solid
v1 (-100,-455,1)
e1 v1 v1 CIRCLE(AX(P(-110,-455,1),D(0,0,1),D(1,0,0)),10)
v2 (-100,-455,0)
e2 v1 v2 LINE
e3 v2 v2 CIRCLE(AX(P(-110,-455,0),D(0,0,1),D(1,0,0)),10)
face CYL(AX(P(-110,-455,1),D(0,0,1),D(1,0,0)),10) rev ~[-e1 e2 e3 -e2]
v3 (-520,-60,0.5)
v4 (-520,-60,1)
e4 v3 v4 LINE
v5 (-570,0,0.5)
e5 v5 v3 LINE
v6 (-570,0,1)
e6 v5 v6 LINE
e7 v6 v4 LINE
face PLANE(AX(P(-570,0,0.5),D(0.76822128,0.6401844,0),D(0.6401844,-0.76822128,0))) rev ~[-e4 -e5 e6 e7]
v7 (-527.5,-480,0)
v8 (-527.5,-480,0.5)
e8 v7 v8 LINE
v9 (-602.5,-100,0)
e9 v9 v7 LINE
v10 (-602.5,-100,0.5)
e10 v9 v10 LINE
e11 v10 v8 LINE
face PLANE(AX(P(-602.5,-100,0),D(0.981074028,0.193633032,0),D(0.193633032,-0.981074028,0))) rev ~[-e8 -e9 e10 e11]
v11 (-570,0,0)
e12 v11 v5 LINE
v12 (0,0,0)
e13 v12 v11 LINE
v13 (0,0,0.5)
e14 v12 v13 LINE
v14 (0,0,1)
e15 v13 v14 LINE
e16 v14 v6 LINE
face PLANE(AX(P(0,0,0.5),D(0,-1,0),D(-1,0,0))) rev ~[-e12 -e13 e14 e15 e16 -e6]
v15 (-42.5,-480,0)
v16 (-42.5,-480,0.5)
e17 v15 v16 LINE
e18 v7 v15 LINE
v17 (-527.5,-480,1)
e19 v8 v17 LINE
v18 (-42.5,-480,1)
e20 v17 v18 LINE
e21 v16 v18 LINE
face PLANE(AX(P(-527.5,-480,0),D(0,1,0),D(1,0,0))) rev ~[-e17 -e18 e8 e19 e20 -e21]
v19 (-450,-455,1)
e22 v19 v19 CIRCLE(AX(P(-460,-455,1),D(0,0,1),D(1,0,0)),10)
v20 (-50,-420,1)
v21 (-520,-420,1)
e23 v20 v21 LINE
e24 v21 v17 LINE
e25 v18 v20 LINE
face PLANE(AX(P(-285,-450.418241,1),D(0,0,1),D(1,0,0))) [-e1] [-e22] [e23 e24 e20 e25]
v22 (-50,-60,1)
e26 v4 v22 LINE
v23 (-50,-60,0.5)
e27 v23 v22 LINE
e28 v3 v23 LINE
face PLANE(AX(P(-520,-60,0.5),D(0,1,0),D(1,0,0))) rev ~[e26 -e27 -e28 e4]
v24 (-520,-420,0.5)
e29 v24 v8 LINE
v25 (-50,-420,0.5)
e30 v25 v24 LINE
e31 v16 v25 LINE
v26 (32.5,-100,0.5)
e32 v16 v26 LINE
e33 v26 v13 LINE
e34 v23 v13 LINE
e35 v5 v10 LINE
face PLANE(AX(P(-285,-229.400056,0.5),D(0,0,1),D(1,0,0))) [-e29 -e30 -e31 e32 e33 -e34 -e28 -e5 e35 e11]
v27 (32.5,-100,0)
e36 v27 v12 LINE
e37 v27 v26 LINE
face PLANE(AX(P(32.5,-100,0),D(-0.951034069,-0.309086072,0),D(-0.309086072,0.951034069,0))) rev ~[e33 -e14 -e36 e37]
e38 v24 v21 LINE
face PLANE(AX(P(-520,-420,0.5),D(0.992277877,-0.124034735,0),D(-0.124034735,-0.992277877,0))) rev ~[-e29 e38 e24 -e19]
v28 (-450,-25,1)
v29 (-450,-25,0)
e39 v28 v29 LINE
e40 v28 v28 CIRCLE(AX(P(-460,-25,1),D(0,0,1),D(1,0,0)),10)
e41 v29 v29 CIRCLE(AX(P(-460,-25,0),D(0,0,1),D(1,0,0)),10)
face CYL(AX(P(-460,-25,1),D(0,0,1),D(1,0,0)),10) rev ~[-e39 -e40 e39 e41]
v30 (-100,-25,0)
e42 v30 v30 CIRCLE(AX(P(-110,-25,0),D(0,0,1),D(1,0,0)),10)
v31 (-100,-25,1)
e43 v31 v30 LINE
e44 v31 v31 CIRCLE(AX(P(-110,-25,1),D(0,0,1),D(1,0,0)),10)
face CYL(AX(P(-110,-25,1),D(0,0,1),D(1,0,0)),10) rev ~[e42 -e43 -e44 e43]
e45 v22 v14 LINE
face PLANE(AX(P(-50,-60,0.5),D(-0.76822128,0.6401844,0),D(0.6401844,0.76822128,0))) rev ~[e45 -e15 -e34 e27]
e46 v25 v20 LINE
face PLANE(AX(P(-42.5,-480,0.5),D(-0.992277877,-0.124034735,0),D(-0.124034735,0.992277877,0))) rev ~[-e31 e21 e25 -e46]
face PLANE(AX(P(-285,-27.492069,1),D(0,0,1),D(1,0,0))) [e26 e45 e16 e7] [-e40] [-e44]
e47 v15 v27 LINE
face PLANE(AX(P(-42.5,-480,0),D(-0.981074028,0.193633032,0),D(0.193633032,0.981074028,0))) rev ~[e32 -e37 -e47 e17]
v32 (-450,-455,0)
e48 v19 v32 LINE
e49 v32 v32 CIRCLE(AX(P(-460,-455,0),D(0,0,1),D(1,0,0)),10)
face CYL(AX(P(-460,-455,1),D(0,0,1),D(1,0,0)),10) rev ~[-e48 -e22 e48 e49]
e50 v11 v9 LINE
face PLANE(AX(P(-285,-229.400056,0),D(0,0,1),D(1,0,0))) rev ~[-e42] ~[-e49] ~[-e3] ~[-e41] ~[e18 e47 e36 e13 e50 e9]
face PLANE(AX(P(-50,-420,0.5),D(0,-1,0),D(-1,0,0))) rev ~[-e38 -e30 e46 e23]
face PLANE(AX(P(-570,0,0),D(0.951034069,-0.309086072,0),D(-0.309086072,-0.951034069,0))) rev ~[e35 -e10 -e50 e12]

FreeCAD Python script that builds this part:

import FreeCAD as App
import Part
import Sketcher
from FreeCAD import Vector

doc = App.newDocument("Part")
body = doc.addObject("PartDesign::Body", "Body")

# Sketch on XY plane
sketch1 = body.newObject("Sketcher::SketchObject", "Sketch")
sketch1.AttachmentSupport = (doc.getObject("XY_Plane"), [""])
sketch1.MapMode = "FlatFace"
sketch1.addGeometry(Part.LineSegment(Vector(0, 0, 0), Vector(-570, 0, 0)), False)
sketch1.addGeometry(Part.LineSegment(Vector(-570, 0, 0), Vector(-602.5, -100, 0)), False)
sketch1.addGeometry(Part.LineSegment(Vector(-602.5, -100, 0), Vector(-527.5, -480, 0)), False)
sketch1.addGeometry(Part.LineSegment(Vector(-527.5, -480, 0), Vector(-42.5, -480, 0)), False)
sketch1.addGeometry(Part.LineSegment(Vector(-42.5, -480, 0), Vector(32.5, -100, 0)), False)
sketch1.addGeometry(Part.LineSegment(Vector(32.5, -100, 0), Vector(0, 0, 0)), False)
sketch1.addConstraint(Sketcher.Constraint("Coincident", 0, 2, 1, 1))
sketch1.addConstraint(Sketcher.Constraint("Coincident", 1, 2, 2, 1))
sketch1.addConstraint(Sketcher.Constraint("Coincident", 2, 2, 3, 1))
sketch1.addConstraint(Sketcher.Constraint("Coincident", 3, 2, 4, 1))
sketch1.addConstraint(Sketcher.Constraint("Coincident", 4, 2, 5, 1))
sketch1.addConstraint(Sketcher.Constraint("Coincident", 5, 2, 0, 1))
sketch1.addConstraint(Sketcher.Constraint("Horizontal", 0))
sketch1.addConstraint(Sketcher.Constraint("Horizontal", 3))
sketch1.addConstraint(Sketcher.Constraint("Coincident", 5, 2, -1, 1))
sketch1.addConstraint(Sketcher.Constraint("Horizontal", 1, 2, 4, 2))
sketch1.addConstraint(Sketcher.Constraint("Equal", 2, 4))
sketch1.addConstraint(Sketcher.Constraint("Equal", 1, 5))
sketch1.addConstraint(Sketcher.Constraint("DistanceX", 0, 2, 0, 1, 570.0))
sketch1.addConstraint(Sketcher.Constraint("DistanceX", 3, 1, 3, 2, 485.0))
sketch1.addConstraint(Sketcher.Constraint("DistanceY", 1, 2, -1, 1, 100.0))
sketch1.addConstraint(Sketcher.Constraint("DistanceY", 2, 2, -1, 1, 480.0))
sketch1.addConstraint(Sketcher.Constraint("DistanceX", 1, 2, 2, 2, 75.0))
pad1 = body.newObject("PartDesign::Pad", "Pad")
pad1.Profile = sketch1
pad1.Length = 0.5

# Sketch on XY plane
sketch2 = body.newObject("Sketcher::SketchObject", "Sketch001")
sketch2.AttachmentSupport = (doc.getObject("XY_Plane"), [""])
sketch2.MapMode = "FlatFace"
sketch2.AttachmentOffset = App.Placement(Vector(0, 0, 0.5), App.Rotation())
sketch2.addGeometry(Part.LineSegment(Vector(0, 0, 0), Vector(-570, 0, 0)), False)
sketch2.addGeometry(Part.LineSegment(Vector(-570, 0, 0), Vector(-520, -60, 0)), False)
sketch2.addGeometry(Part.LineSegment(Vector(-520, -60, 0), Vector(-50, -60, 0)), False)
sketch2.addGeometry(Part.LineSegment(Vector(-50, -60, 0), Vector(0, 0, 0)), False)
sketch2.addGeometry(Part.LineSegment(Vector(-527.5, -480, 0), Vector(-42.5, -480, 0)), False)
sketch2.addGeometry(Part.LineSegment(Vector(-42.5, -480, 0), Vector(-50, -420, 0)), False)
sketch2.addGeometry(Part.LineSegment(Vector(-50, -420, 0), Vector(-520, -420, 0)), False)
sketch2.addGeometry(Part.LineSegment(Vector(-520, -420, 0), Vector(-527.5, -480, 0)), False)
sketch2.addConstraint(Sketcher.Constraint("Coincident", 0, 2, 1, 1))
sketch2.addConstraint(Sketcher.Constraint("Coincident", 1, 2, 2, 1))
sketch2.addConstraint(Sketcher.Constraint("Coincident", 2, 2, 3, 1))
sketch2.addConstraint(Sketcher.Constraint("Coincident", 3, 2, 0, 1))
sketch2.addConstraint(Sketcher.Constraint("Coincident", 4, 2, 5, 1))
sketch2.addConstraint(Sketcher.Constraint("Coincident", 5, 2, 6, 1))
sketch2.addConstraint(Sketcher.Constraint("Coincident", 6, 2, 7, 1))
sketch2.addConstraint(Sketcher.Constraint("Coincident", 7, 2, 4, 1))
sketch2.addConstraint(Sketcher.Constraint("Horizontal", 0))
sketch2.addConstraint(Sketcher.Constraint("Horizontal", 2))
sketch2.addConstraint(Sketcher.Constraint("Horizontal", 4))
sketch2.addConstraint(Sketcher.Constraint("Horizontal", 6))
sketch2.addConstraint(Sketcher.Constraint("Coincident", 3, 2, -1, 1))
sketch2.addConstraint(Sketcher.Constraint("Vertical", 2, 2, 5, 2))
sketch2.addConstraint(Sketcher.Constraint("Vertical", 1, 2, 6, 2))
sketch2.addConstraint(Sketcher.Constraint("Equal", 1, 3))
sketch2.addConstraint(Sketcher.Constraint("Equal", 5, 7))
sketch2.addConstraint(Sketcher.Constraint("DistanceX", 0, 2, 0, 1, 570.0))
sketch2.addConstraint(Sketcher.Constraint("DistanceX", 2, 1, 2, 2, 470.0))
sketch2.addConstraint(Sketcher.Constraint("DistanceX", 4, 1, 4, 2, 485.0))
sketch2.addConstraint(Sketcher.Constraint("DistanceY", 1, 2, -1, 1, 60.0))
sketch2.addConstraint(Sketcher.Constraint("DistanceY", 4, 2, -1, 1, 480.0))
sketch2.addConstraint(Sketcher.Constraint("DistanceY", 5, 2, -1, 1, 420.0))
pad2 = body.newObject("PartDesign::Pad", "Pad001")
pad2.Profile = sketch2
pad2.Length = 0.5

# Sketch on XY plane
sketch3 = body.newObject("Sketcher::SketchObject", "Sketch002")
sketch3.AttachmentSupport = (doc.getObject("XY_Plane"), [""])
sketch3.MapMode = "FlatFace"
sketch3.AttachmentOffset = App.Placement(Vector(0, 0, 1), App.Rotation())
sketch3.addGeometry(Part.Circle(Vector(-460, -25, 0), Vector(0, 0, 1), 10), False)
sketch3.addGeometry(Part.Circle(Vector(-460, -455, 0), Vector(0, 0, 1), 10), False)
sketch3.addGeometry(Part.Circle(Vector(-110, -25, 0), Vector(0, 0, 1), 10), False)
sketch3.addGeometry(Part.Circle(Vector(-110, -455, 0), Vector(0, 0, 1), 10), False)
sketch3.addConstraint(Sketcher.Constraint("Equal", 0, 1))
sketch3.addConstraint(Sketcher.Constraint("Equal", 1, 2))
sketch3.addConstraint(Sketcher.Constraint("Equal", 2, 3))
sketch3.addConstraint(Sketcher.Constraint("Horizontal", 0, 3, 2, 3))
sketch3.addConstraint(Sketcher.Constraint("Horizontal", 1, 3, 3, 3))
sketch3.addConstraint(Sketcher.Constraint("Vertical", 0, 3, 1, 3))
sketch3.addConstraint(Sketcher.Constraint("Vertical", 2, 3, 3, 3))
sketch3.addConstraint(Sketcher.Constraint("Diameter", 0, 20.0))
sketch3.addConstraint(Sketcher.Constraint("DistanceX", 0, 3, -1, 1, 460.0))
sketch3.addConstraint(Sketcher.Constraint("DistanceY", 0, 3, -1, 1, 25.0))
sketch3.addConstraint(Sketcher.Constraint("DistanceY", 1, 3, -1, 1, 455.0))
sketch3.addConstraint(Sketcher.Constraint("DistanceX", 2, 3, -1, 1, 110.0))
pocket1 = body.newObject("PartDesign::Pocket", "Pocket")
pocket1.Profile = sketch3
pocket1.Type = "ThroughAll"

doc.recompute()
